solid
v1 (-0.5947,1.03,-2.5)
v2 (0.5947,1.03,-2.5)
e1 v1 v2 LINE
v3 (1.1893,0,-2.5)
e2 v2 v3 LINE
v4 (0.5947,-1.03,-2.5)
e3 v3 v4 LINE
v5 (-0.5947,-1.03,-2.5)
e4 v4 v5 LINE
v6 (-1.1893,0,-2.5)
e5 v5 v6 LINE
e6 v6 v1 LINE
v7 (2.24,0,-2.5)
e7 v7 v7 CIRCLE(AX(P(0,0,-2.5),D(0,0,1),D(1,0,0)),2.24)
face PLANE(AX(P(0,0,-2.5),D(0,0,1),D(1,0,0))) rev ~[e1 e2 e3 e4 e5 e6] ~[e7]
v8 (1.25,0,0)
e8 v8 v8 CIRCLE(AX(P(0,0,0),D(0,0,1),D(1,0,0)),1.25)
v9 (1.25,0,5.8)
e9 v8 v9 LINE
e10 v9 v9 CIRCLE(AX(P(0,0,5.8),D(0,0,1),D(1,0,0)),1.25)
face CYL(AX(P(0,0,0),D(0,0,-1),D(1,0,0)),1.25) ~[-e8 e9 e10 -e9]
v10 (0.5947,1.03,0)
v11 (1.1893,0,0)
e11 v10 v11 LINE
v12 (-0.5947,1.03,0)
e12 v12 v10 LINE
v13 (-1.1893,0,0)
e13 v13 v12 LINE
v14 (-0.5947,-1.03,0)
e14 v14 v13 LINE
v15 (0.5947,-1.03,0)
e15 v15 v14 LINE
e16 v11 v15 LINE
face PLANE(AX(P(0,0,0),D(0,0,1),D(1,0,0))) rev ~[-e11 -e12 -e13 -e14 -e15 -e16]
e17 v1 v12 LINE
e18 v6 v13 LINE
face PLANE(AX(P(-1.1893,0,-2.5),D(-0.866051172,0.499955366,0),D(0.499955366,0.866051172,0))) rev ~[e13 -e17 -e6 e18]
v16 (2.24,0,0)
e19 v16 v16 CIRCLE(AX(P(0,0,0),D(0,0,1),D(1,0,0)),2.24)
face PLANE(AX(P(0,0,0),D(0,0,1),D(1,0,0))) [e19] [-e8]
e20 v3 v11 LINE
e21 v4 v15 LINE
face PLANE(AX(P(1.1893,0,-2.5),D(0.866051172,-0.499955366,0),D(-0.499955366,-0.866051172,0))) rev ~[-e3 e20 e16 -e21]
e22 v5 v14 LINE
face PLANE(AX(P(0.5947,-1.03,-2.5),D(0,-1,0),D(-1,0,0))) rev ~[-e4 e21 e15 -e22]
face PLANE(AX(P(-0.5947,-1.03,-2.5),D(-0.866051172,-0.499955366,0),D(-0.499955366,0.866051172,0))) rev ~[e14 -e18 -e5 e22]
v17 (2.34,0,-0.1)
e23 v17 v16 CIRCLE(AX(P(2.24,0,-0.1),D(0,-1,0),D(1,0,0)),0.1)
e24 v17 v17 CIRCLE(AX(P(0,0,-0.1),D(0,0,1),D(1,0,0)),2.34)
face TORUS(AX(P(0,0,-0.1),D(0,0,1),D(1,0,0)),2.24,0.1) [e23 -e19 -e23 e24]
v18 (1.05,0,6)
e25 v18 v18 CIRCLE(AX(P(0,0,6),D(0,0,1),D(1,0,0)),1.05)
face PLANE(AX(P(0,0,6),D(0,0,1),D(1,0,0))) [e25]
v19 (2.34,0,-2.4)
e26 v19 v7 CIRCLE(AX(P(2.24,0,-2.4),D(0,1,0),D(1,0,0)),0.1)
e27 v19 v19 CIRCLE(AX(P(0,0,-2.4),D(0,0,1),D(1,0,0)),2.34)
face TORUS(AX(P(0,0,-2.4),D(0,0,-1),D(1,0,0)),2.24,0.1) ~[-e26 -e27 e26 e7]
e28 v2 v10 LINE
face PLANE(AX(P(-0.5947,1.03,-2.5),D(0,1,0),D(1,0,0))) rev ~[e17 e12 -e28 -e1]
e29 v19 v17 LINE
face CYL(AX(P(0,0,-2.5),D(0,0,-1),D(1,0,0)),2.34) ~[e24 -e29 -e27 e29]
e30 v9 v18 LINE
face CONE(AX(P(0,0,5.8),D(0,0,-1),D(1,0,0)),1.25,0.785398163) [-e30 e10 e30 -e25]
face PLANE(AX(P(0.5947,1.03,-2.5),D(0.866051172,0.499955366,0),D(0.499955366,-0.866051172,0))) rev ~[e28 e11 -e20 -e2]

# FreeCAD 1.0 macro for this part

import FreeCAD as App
import Part
import Sketcher
Q = App.Units.Quantity


def edges_at(feature, points):
    """Names of the edges that pass closest to the given points."""
    edges = feature.Shape.Edges
    near = lambda p: min(range(len(edges)), key=lambda i: edges[i].distToShape(Part.Vertex(*p))[0])
    return sorted({f"Edge{near(p) + 1}" for p in points})


def add_polygon(sketch, points):
    """Adds a closed chain of lines whose ends are joined by coincident constraints."""
    first, n = sketch.GeometryCount, len(points)
    for a, b in zip(points, points[1:] + points[:1]):
        sketch.addGeometry(Part.LineSegment(App.Vector(*a, 0), App.Vector(*b, 0)), False)
    for i in range(n):
        sketch.addConstraint(Sketcher.Constraint("Coincident", first + i, 2, first + (i + 1) % n, 1))

doc = App.newDocument("Part")
body = doc.addObject("PartDesign::Body", "Body")

sketch1 = body.newObject("Sketcher::SketchObject", "Sketch")
sketch1.AttachmentSupport = (doc.getObject("XY_Plane"), [""])
sketch1.MapMode = "FlatFace"
sketch1.AttachmentOffset = App.Placement(App.Vector(0, 0, -2.5), App.Rotation())
sketch1.addGeometry(Part.Circle(App.Vector(0, 0, 0), App.Vector(0, 0, 1), 2.3), False)
sketch1.addConstraint(Sketcher.Constraint("Coincident", 0, 3, -1, 1))
sketch1.addConstraint(Sketcher.Constraint("Diameter", 0, Q("4.68 mm")))
pad1 = body.newObject("PartDesign::Pad", "Pad")
pad1.Profile = sketch1
pad1.Length = 2.5

sketch2 = body.newObject("Sketcher::SketchObject", "Sketch001")
sketch2.AttachmentSupport = (doc.getObject("XY_Plane"), [""])
sketch2.MapMode = "FlatFace"
sketch2.addGeometry(Part.Circle(App.Vector(0, 0, 0), App.Vector(0, 0, 1), 1.2), False)
sketch2.addConstraint(Sketcher.Constraint("Coincident", 0, 3, -1, 1))
sketch2.addConstraint(Sketcher.Constraint("Diameter", 0, Q("2.5 mm")))
pad2 = body.newObject("PartDesign::Pad", "Pad001")
pad2.Profile = sketch2
pad2.Length = 6

sketch3 = body.newObject("Sketcher::SketchObject", "Sketch002")
sketch3.AttachmentSupport = (doc.getObject("XY_Plane"), [""])
sketch3.MapMode = "FlatFace"
sketch3.AttachmentOffset = App.Placement(App.Vector(0, 0, -2.5), App.Rotation())
add_polygon(sketch3, [(-0.6, -1), (0.6, -1), (1.2, 0), (0.6, 1), (-0.6, 1), (-1.2, 0)])
sketch3.addConstraint(Sketcher.Constraint("Horizontal", 0))
sketch3.addConstraint(Sketcher.Constraint("Horizontal", 3))
sketch3.addConstraint(Sketcher.Constraint("Symmetric", 0, 2, 3, 2, -1, 1))
sketch3.addConstraint(Sketcher.Constraint("Symmetric", 1, 2, 4, 2, -1, 1))
sketch3.addConstraint(Sketcher.Constraint("PointOnObject", 1, 2, -1))
sketch3.addConstraint(Sketcher.Constraint("Parallel", 2, 5))
sketch3.addConstraint(Sketcher.Constraint("Vertical", 0, 2, 2, 2))
sketch3.addConstraint(Sketcher.Constraint("DistanceY", 0, 2, -1, 1, Q("1.03 mm")))
sketch3.addConstraint(Sketcher.Constraint("DistanceX", 0, 1, 0, 2, Q("1.1894 mm")))
sketch3.addConstraint(Sketcher.Constraint("DistanceX", 3, 2, 1, 2, Q("1.784 mm")))
pocket1 = body.newObject("PartDesign::Pocket", "Pocket")
pocket1.Profile = sketch3
pocket1.Length = 2.5
pocket1.Reversed = True
doc.recompute()

fillet = body.newObject("PartDesign::Fillet", "Fillet")
fillet.Base = (pocket1, edges_at(pocket1, [(-2.34, 0, 0), (-2.34, 0, -2.5)]))
fillet.Radius = 0.1
doc.recompute()

chamfer = body.newObject("PartDesign::Chamfer", "Chamfer")
chamfer.Base = (fillet, edges_at(fillet, [(-1.25, 0, 6)]))
chamfer.Size = 0.2

doc.recompute()
